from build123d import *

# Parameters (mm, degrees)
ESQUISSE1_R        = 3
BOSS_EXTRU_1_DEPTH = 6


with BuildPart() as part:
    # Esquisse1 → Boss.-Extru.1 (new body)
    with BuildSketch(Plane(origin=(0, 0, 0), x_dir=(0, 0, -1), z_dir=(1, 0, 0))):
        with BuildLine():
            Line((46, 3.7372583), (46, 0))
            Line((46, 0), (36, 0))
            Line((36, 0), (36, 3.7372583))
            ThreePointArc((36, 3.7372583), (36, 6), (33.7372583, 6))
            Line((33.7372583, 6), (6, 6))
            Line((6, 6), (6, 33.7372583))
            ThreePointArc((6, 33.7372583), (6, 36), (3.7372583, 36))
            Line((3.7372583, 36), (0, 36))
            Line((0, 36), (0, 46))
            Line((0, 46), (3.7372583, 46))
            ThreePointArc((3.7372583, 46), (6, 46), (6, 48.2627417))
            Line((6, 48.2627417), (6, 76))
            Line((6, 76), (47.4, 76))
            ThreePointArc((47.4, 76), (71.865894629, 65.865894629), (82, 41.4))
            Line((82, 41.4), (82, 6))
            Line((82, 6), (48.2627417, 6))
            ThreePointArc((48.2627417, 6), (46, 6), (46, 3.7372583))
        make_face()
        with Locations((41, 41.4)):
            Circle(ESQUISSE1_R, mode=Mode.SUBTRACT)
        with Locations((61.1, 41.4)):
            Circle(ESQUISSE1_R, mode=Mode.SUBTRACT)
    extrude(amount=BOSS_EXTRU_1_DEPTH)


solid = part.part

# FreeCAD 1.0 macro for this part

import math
import FreeCAD as App
import Part
import Sketcher
from FreeCAD import Vector
Q = App.Units.Quantity

doc = App.newDocument("Part")
body = doc.addObject("PartDesign::Body", "Body")

# Sketch on YZ plane
sketch1 = doc.addObject("Sketcher::SketchObject", "Sketch")
body.addObject(sketch1)
sketch1.AttachmentSupport = (doc.YZ_Plane, [""])
sketch1.MapMode = "FlatFace"
sketch1.addGeometry([
    Part.LineSegment(Vector(0, -46, 0), Vector(3.7, -46, 0)),  # 0
    Part.ArcOfCircle(Part.Circle(Vector(4.9, -47.1, 0), Vector(0, 0, 1), 1.6), math.radians(-45), math.radians(135)),  # 1
    Part.LineSegment(Vector(6, -48.3, 0), Vector(6, -82, 0)),  # 2
    Part.LineSegment(Vector(6, -82, 0), Vector(41.4, -82, 0)),  # 3
    Part.ArcOfCircle(Part.Circle(Vector(41.4, -47.4, 0), Vector(0, 0, 1), 34.6), math.radians(-90), math.radians(0)),  # 4
    Part.LineSegment(Vector(76, -47.4, 0), Vector(76, -6, 0)),  # 5
    Part.LineSegment(Vector(76, -6, 0), Vector(48.3, -6, 0)),  # 6
    Part.ArcOfCircle(Part.Circle(Vector(47.1, -4.9, 0), Vector(0, 0, 1), 1.6), math.radians(135), math.radians(315)),  # 7
    Part.LineSegment(Vector(46, -3.7, 0), Vector(46, 0, 0)),  # 8
    Part.LineSegment(Vector(46, 0, 0), Vector(36, 0, 0)),  # 9
    Part.LineSegment(Vector(36, 0, 0), Vector(36, -3.7, 0)),  # 10
    Part.ArcOfCircle(Part.Circle(Vector(34.9, -4.9, 0), Vector(0, 0, 1), 1.6), math.radians(-135), math.radians(45)),  # 11
    Part.LineSegment(Vector(33.7, -6, 0), Vector(6, -6, 0)),  # 12
    Part.LineSegment(Vector(6, -6, 0), Vector(6, -33.7, 0)),  # 13
    Part.ArcOfCircle(Part.Circle(Vector(4.9, -34.9, 0), Vector(0, 0, 1), 1.6), math.radians(-135), math.radians(45)),  # 14
    Part.LineSegment(Vector(3.7, -36, 0), Vector(0, -36, 0)),  # 15
    Part.LineSegment(Vector(0, -36, 0), Vector(0, -46, 0)),  # 16
    Part.Circle(Vector(41.4, -61.1, 0), Vector(0, 0, 1), 3),  # 17
    Part.Circle(Vector(41.4, -41, 0), Vector(0, 0, 1), 3),  # 18
], False)
sketch1.addConstraint([
    Sketcher.Constraint("Coincident", 0, 2, 1, 2),
    Sketcher.Constraint("Coincident", 1, 1, 2, 1),
    Sketcher.Constraint("Coincident", 2, 2, 3, 1),
    Sketcher.Constraint("Tangent", 3, 2, 4, 1),
    Sketcher.Constraint("Tangent", 4, 2, 5, 1),
    Sketcher.Constraint("Coincident", 5, 2, 6, 1),
    Sketcher.Constraint("Coincident", 6, 2, 7, 2),
    Sketcher.Constraint("Coincident", 7, 1, 8, 1),
    Sketcher.Constraint("Coincident", 8, 2, 9, 1),
    Sketcher.Constraint("Coincident", 9, 2, 10, 1),
    Sketcher.Constraint("Coincident", 10, 2, 11, 2),
    Sketcher.Constraint("Coincident", 11, 1, 12, 1),
    Sketcher.Constraint("Coincident", 12, 2, 13, 1),
    Sketcher.Constraint("Coincident", 13, 2, 14, 2),
    Sketcher.Constraint("Coincident", 14, 1, 15, 1),
    Sketcher.Constraint("Coincident", 15, 2, 16, 1),
    Sketcher.Constraint("Coincident", 16, 2, 0, 1),
    Sketcher.Constraint("Horizontal", 0),
    Sketcher.Constraint("Vertical", 2),
    Sketcher.Constraint("Horizontal", 3),
    Sketcher.Constraint("Vertical", 5),
    Sketcher.Constraint("Horizontal", 6),
    Sketcher.Constraint("Vertical", 8),
    Sketcher.Constraint("Horizontal", 9),
    Sketcher.Constraint("Vertical", 10),
    Sketcher.Constraint("Horizontal", 12),
    Sketcher.Constraint("Vertical", 13),
    Sketcher.Constraint("Horizontal", 15),
    Sketcher.Constraint("Vertical", 16),
    Sketcher.Constraint("Equal", 1, 7),
    Sketcher.Constraint("Equal", 7, 11),
    Sketcher.Constraint("Equal", 11, 14),
    Sketcher.Constraint("Equal", 17, 18),
    Sketcher.Constraint("PointOnObject", 8, 2, -1),
    Sketcher.Constraint("PointOnObject", 15, 2, -2),
    Sketcher.Constraint("Horizontal", 7, 3, 11, 3),
    Sketcher.Constraint("Horizontal", 7, 1, 10, 2),
    Sketcher.Constraint("Horizontal", 6, 2, 11, 1),
    Sketcher.Constraint("Vertical", 1, 3, 14, 3),
    Sketcher.Constraint("Vertical", 4, 3, 17, 3),
    Sketcher.Constraint("Vertical", 17, 3, 18, 3),
    Sketcher.Constraint("Vertical", 2, 2, 12, 2),
    Sketcher.Constraint("Vertical", 0, 2, 14, 1),
    Sketcher.Constraint("Equal", 6, 12),
    Sketcher.Constraint("Equal", 15, 8),
    Sketcher.Constraint("Equal", 12, 13),
    Sketcher.Constraint("Equal", 9, 16),
    Sketcher.Constraint("Diameter", 17, Q("6 mm")),
    Sketcher.Constraint("Radius", 1, Q("1.6 mm")),
    Sketcher.Constraint("Radius", 4, Q("34.6 mm")),
    Sketcher.Constraint("DistanceX", 9, 2, 9, 1, Q("10 mm")),
    Sketcher.Constraint("DistanceX", 3, 1, 3, 2, Q("35.4 mm")),
    Sketcher.Constraint("DistanceY", 5, 1, 5, 2, Q("41.4 mm")),
    Sketcher.Constraint("DistanceY", 18, 3, -1, 1, Q("41 mm")),
    Sketcher.Constraint("DistanceY", 0, 2, -1, 1, Q("46 mm")),
    Sketcher.Constraint("DistanceX", -1, 1, 1, 1, Q("6 mm")),
    Sketcher.Constraint("DistanceX", 1, 3, 11, 3, Q("30 mm")),
    Sketcher.Constraint("DistanceY", 14, 3, 11, 3, Q("30 mm")),
    Sketcher.Constraint("DistanceY", 17, 3, -1, 1, Q("61.1 mm")),
    Sketcher.Constraint("DistanceX", -1, 1, 1, 3, Q("4.868629 mm")),
])
pad1 = doc.addObject("PartDesign::Pad", "Pad")
body.addObject(pad1)
pad1.Profile = sketch1
pad1.Length = 6

doc.recompute()
